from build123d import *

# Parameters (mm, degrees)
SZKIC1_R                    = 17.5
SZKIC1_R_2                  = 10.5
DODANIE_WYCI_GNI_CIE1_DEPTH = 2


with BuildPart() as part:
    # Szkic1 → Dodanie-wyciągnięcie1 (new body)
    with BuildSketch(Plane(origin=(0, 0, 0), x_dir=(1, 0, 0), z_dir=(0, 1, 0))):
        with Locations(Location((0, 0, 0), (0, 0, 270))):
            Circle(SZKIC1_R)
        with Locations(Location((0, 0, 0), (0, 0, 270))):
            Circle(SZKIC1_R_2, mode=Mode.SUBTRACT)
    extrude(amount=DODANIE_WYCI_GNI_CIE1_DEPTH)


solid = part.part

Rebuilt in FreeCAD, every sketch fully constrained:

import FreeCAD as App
import Part
import Sketcher

doc = App.newDocument("Part")
body = doc.addObject("PartDesign::Body", "Body")

sketch1 = body.newObject("Sketcher::SketchObject", "Sketch")
sketch1.AttachmentSupport = (doc.getObject("XZ_Plane"), [""])
sketch1.MapMode = "FlatFace"
sketch1.addGeometry([
    Part.Circle(App.Vector(0, 0, 0), App.Vector(0, 0, 1), 18),
    Part.Circle(App.Vector(0, 0, 0), App.Vector(0, 0, 1), 10),
], False)
sketch1.addConstraint([
    Sketcher.Constraint("Coincident", 0, 3, -1, 1),
    Sketcher.Constraint("Coincident", 1, 3, -1, 1),
    Sketcher.Constraint("Diameter", 0, 35.0),
    Sketcher.Constraint("Diameter", 1, 21.0),
])
pad1 = body.newObject("PartDesign::Pad", "Pad")
pad1.Profile = sketch1
pad1.Length = 2
pad1.Reversed = True

doc.recompute()
